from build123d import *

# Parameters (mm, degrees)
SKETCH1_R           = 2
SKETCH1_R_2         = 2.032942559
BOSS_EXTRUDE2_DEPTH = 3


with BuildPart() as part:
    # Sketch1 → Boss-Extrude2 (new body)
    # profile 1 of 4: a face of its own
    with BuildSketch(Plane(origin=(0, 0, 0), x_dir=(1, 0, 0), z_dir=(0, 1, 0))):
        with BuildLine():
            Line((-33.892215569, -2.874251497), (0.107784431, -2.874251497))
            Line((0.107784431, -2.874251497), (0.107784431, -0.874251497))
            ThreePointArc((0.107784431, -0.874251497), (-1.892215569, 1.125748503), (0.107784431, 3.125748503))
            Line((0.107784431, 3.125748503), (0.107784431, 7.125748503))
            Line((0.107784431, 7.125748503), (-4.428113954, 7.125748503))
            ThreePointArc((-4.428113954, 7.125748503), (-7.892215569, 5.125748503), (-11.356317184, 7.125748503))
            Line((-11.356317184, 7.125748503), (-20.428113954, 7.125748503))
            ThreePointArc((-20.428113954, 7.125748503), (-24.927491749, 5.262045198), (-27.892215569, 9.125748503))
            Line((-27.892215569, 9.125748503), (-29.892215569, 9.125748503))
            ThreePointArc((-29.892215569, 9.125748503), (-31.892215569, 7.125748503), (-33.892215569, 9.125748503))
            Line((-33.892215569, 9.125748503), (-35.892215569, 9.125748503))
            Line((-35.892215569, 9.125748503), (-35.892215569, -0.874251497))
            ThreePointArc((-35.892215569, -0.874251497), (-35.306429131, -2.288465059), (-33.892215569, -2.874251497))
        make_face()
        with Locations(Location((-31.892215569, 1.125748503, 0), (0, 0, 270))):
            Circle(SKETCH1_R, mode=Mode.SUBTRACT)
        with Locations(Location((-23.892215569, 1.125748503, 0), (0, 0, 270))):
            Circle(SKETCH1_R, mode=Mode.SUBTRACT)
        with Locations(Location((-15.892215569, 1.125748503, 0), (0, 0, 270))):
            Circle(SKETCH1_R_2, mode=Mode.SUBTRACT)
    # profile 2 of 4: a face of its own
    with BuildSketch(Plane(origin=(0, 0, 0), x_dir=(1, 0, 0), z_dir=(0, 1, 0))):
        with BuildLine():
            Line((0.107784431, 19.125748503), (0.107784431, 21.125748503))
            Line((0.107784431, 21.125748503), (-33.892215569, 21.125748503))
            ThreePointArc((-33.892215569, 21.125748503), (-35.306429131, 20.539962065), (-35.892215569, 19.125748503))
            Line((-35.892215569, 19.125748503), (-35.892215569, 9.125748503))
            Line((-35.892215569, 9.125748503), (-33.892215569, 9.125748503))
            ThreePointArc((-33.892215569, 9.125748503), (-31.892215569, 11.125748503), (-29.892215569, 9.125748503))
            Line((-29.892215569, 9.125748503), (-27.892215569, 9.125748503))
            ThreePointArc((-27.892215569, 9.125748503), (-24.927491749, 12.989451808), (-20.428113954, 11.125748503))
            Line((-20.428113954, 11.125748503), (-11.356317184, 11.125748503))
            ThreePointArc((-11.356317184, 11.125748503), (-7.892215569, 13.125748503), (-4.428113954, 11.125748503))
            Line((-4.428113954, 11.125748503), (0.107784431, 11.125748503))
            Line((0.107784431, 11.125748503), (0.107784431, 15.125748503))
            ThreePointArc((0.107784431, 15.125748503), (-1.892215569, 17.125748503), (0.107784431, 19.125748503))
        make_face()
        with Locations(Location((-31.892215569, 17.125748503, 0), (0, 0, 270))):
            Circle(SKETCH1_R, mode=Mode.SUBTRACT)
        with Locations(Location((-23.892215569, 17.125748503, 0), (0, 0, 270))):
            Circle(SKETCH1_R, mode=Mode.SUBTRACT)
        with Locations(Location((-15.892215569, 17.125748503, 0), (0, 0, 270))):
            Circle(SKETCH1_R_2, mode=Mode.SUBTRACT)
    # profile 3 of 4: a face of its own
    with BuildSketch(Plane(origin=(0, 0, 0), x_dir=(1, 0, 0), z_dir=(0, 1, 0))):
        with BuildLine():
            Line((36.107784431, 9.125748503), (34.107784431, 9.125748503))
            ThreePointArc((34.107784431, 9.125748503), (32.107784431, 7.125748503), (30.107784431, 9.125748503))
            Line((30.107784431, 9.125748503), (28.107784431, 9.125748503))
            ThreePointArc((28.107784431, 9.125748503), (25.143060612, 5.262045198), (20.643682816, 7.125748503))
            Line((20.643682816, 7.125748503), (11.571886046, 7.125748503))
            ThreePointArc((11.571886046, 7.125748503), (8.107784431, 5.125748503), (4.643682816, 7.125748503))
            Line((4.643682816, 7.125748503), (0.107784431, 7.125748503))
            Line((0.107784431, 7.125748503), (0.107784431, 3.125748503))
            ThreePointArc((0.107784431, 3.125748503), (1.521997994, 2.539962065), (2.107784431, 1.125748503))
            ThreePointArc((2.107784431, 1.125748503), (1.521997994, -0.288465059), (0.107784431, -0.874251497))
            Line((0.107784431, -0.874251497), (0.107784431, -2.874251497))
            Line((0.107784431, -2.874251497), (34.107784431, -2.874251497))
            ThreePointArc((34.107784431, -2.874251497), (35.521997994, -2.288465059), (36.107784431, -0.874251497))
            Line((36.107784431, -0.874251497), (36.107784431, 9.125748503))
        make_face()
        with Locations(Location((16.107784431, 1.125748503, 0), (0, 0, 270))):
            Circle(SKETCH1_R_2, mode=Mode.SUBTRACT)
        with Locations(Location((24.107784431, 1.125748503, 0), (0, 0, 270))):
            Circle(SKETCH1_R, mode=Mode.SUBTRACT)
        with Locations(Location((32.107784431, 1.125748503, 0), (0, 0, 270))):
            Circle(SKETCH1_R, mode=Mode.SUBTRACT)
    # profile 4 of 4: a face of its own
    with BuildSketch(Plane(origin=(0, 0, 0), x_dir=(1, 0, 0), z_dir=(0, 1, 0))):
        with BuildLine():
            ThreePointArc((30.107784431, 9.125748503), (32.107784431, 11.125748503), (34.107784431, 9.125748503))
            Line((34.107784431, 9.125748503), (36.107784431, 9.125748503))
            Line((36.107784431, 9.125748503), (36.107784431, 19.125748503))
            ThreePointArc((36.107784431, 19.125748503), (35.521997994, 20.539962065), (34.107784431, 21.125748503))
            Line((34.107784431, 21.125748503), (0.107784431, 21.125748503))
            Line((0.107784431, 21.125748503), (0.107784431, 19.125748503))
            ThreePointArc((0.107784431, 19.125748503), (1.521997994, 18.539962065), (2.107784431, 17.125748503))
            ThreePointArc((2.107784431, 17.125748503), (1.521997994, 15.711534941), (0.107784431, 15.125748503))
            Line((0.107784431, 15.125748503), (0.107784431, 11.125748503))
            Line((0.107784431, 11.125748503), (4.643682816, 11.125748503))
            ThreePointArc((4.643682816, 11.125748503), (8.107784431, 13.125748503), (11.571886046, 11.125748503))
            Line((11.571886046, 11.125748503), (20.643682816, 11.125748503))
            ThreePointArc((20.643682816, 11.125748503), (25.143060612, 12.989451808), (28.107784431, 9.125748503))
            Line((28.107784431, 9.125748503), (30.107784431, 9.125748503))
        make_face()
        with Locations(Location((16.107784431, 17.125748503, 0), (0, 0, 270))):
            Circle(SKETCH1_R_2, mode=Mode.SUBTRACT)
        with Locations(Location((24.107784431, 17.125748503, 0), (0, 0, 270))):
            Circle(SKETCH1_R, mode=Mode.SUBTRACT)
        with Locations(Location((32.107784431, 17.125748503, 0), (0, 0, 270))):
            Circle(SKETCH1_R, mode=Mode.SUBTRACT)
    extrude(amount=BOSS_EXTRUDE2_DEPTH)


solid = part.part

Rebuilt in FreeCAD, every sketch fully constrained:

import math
import FreeCAD as App
import Part
import Sketcher

V = App.Vector
Q = App.Units.Quantity

doc = App.newDocument("Part")
body = doc.addObject("PartDesign::Body", "Body")

# Sketch on XZ plane
sketch1 = body.newObject("Sketcher::SketchObject", "Sketch")
sketch1.AttachmentSupport = (doc.getObject("XZ_Plane"), [""])
sketch1.MapMode = "FlatFace"
sketch1.addGeometry([
    Part.LineSegment(V(-33.9, 2.9, 0), V(34.1, 2.9, 0)),  # 0
    Part.ArcOfCircle(Part.Circle(V(34.1, 0.9, 0), V(0, 0, 1), 2), math.radians(0), math.radians(90)),  # 1
    Part.LineSegment(V(36.1, 0.9, 0), V(36.1, -19.1, 0)),  # 2
    Part.ArcOfCircle(Part.Circle(V(34.1, -19.1, 0), V(0, 0, 1), 2), math.radians(-90), math.radians(0)),  # 3
    Part.LineSegment(V(34.1, -21.1, 0), V(-33.9, -21.1, 0)),  # 4
    Part.ArcOfCircle(Part.Circle(V(-33.9, -19.1, 0), V(0, 0, 1), 2), math.radians(-180), math.radians(-90)),  # 5
    Part.LineSegment(V(-35.9, -19.1, 0), V(-35.9, 0.9, 0)),  # 6
    Part.ArcOfCircle(Part.Circle(V(-33.9, 0.9, 0), V(0, 0, 1), 2), math.radians(90), math.radians(180)),  # 7
    Part.ArcOfCircle(Part.Circle(V(0.1, -1.1, 0), V(0, 0, 1), 2), math.radians(90), math.radians(270)),  # 8
    Part.ArcOfCircle(Part.Circle(V(0.1, -1.1, 0), V(0, 0, 1), 2), math.radians(-90), math.radians(0)),  # 9
    Part.ArcOfCircle(Part.Circle(V(0.1, -1.1, 0), V(0, 0, 1), 2), math.radians(0), math.radians(90)),  # 10
    Part.Circle(V(-31.9, -9.1, 0), V(0, 0, 1), 2),  # 11
    Part.ArcOfCircle(Part.Circle(V(-7.9, -9.1, 0), V(0, 0, 1), 4), math.radians(30), math.radians(150)),  # 12
    Part.LineSegment(V(-11.4, -7.1, 0), V(-20.4, -7.1, 0)),  # 13
    Part.ArcOfCircle(Part.Circle(V(-23.9, -9.1, 0), V(0, 0, 1), 4), math.radians(30), math.radians(180)),  # 14
    Part.ArcOfCircle(Part.Circle(V(-23.9, -9.1, 0), V(0, 0, 1), 4), math.radians(180), math.radians(330)),  # 15
    Part.LineSegment(V(-20.4, -11.1, 0), V(-11.4, -11.1, 0)),  # 16
    Part.ArcOfCircle(Part.Circle(V(-7.9, -9.1, 0), V(0, 0, 1), 4), math.radians(-150), math.radians(-30)),  # 17
    Part.LineSegment(V(-4.4, -11.1, 0), V(4.6, -11.1, 0)),  # 18
    Part.ArcOfCircle(Part.Circle(V(8.1, -9.1, 0), V(0, 0, 1), 4), math.radians(-150), math.radians(-30)),  # 19
    Part.LineSegment(V(11.6, -11.1, 0), V(20.6, -11.1, 0)),  # 20
    Part.ArcOfCircle(Part.Circle(V(24.1, -9.1, 0), V(0, 0, 1), 4), math.radians(-150), math.radians(0)),  # 21
    Part.ArcOfCircle(Part.Circle(V(24.1, -9.1, 0), V(0, 0, 1), 4), math.radians(0), math.radians(150)),  # 22
    Part.LineSegment(V(20.6, -7.1, 0), V(11.6, -7.1, 0)),  # 23
    Part.ArcOfCircle(Part.Circle(V(8.1, -9.1, 0), V(0, 0, 1), 4), math.radians(30), math.radians(150)),  # 24
    Part.LineSegment(V(4.6, -7.1, 0), V(-4.4, -7.1, 0)),  # 25
    Part.Circle(V(-31.9, -1.1, 0), V(0, 0, 1), 2),  # 26
    Part.Circle(V(-23.9, -1.1, 0), V(0, 0, 1), 2),  # 27
    Part.Circle(V(-15.9, -1.1, 0), V(0, 0, 1), 2),  # 28
    Part.Circle(V(32.1, -9.1, 0), V(0, 0, 1), 2),  # 29
    Part.Circle(V(32.1, -1.1, 0), V(0, 0, 1), 2),  # 30
    Part.Circle(V(24.1, -1.1, 0), V(0, 0, 1), 2),  # 31
    Part.Circle(V(16.1, -1.1, 0), V(0, 0, 1), 2),  # 32
    Part.ArcOfCircle(Part.Circle(V(0.1, -17.1, 0), V(0, 0, 1), 2), math.radians(90), math.radians(270)),  # 33
    Part.ArcOfCircle(Part.Circle(V(0.1, -17.1, 0), V(0, 0, 1), 2), math.radians(-90), math.radians(0)),  # 34
    Part.ArcOfCircle(Part.Circle(V(0.1, -17.1, 0), V(0, 0, 1), 2), math.radians(0), math.radians(90)),  # 35
    Part.Circle(V(-15.9, -17.1, 0), V(0, 0, 1), 2),  # 36
    Part.Circle(V(-23.9, -17.1, 0), V(0, 0, 1), 2),  # 37
    Part.Circle(V(-31.9, -17.1, 0), V(0, 0, 1), 2),  # 38
    Part.Circle(V(24.1, -17.1, 0), V(0, 0, 1), 2),  # 39
    Part.Circle(V(32.1, -17.1, 0), V(0, 0, 1), 2),  # 40
    Part.Circle(V(16.1, -17.1, 0), V(0, 0, 1), 2),  # 41
], False)
sketch1.addConstraint([
    Sketcher.Constraint("Tangent", 0, 2, 1, 2),
    Sketcher.Constraint("Tangent", 1, 1, 2, 1),
    Sketcher.Constraint("Tangent", 2, 2, 3, 2),
    Sketcher.Constraint("Tangent", 3, 1, 4, 1),
    Sketcher.Constraint("Tangent", 4, 2, 5, 2),
    Sketcher.Constraint("Tangent", 5, 1, 6, 1),
    Sketcher.Constraint("Tangent", 6, 2, 7, 2),
    Sketcher.Constraint("Tangent", 7, 1, 0, 1),
    Sketcher.Constraint("Tangent", 8, 2, 9, 1),
    Sketcher.Constraint("Tangent", 9, 2, 10, 1),
    Sketcher.Constraint("Tangent", 10, 2, 8, 1),
    Sketcher.Constraint("Coincident", 12, 2, 13, 1),
    Sketcher.Constraint("Coincident", 13, 2, 14, 1),
    Sketcher.Constraint("Tangent", 14, 2, 15, 1),
    Sketcher.Constraint("Coincident", 15, 2, 16, 1),
    Sketcher.Constraint("Coincident", 16, 2, 17, 1),
    Sketcher.Constraint("Coincident", 17, 2, 18, 1),
    Sketcher.Constraint("Coincident", 18, 2, 19, 1),
    Sketcher.Constraint("Coincident", 19, 2, 20, 1),
    Sketcher.Constraint("Coincident", 20, 2, 21, 1),
    Sketcher.Constraint("Tangent", 21, 2, 22, 1),
    Sketcher.Constraint("Coincident", 22, 2, 23, 1),
    Sketcher.Constraint("Coincident", 23, 2, 24, 1),
    Sketcher.Constraint("Coincident", 24, 2, 25, 1),
    Sketcher.Constraint("Coincident", 25, 2, 12, 1),
    Sketcher.Constraint("Tangent", 33, 2, 34, 1),
    Sketcher.Constraint("Tangent", 34, 2, 35, 1),
    Sketcher.Constraint("Tangent", 35, 2, 33, 1),
    Sketcher.Constraint("Horizontal", 0),
    Sketcher.Constraint("Vertical", 2),
    Sketcher.Constraint("Horizontal", 4),
    Sketcher.Constraint("Vertical", 6),
    Sketcher.Constraint("Horizontal", 13),
    Sketcher.Constraint("Horizontal", 16),
    Sketcher.Constraint("Horizontal", 18),
    Sketcher.Constraint("Horizontal", 20),
    Sketcher.Constraint("Horizontal", 23),
    Sketcher.Constraint("Horizontal", 25),
    Sketcher.Constraint("Coincident", 17, 3, 12, 3),
    Sketcher.Constraint("Coincident", 24, 3, 19, 3),
    Sketcher.Constraint("Equal", 1, 3),
    Sketcher.Constraint("Equal", 3, 5),
    Sketcher.Constraint("Equal", 5, 7),
    Sketcher.Constraint("Equal", 7, 8),
    Sketcher.Constraint("Equal", 10, 11),
    Sketcher.Constraint("Equal", 12, 14),
    Sketcher.Constraint("Equal", 14, 15),
    Sketcher.Constraint("Equal", 15, 17),
    Sketcher.Constraint("Equal", 17, 19),
    Sketcher.Constraint("Equal", 19, 21),
    Sketcher.Constraint("Equal", 21, 22),
    Sketcher.Constraint("Equal", 22, 24),
    Sketcher.Constraint("Equal", 11, 26),
    Sketcher.Constraint("Equal", 26, 27),
    Sketcher.Constraint("Equal", 27, 29),
    Sketcher.Constraint("Equal", 29, 30),
    Sketcher.Constraint("Equal", 30, 31),
    Sketcher.Constraint("Equal", 28, 32),
    Sketcher.Constraint("Equal", 31, 33),
    Sketcher.Constraint("Equal", 32, 36),
    Sketcher.Constraint("Equal", 35, 37),
    Sketcher.Constraint("Equal", 37, 38),
    Sketcher.Constraint("Equal", 38, 39),
    Sketcher.Constraint("Equal", 39, 40),
    Sketcher.Constraint("Equal", 36, 41),
    Sketcher.Constraint("Horizontal", 11, 3, 12, 3),
    Sketcher.Constraint("Horizontal", 12, 3, 14, 3),
    Sketcher.Constraint("Horizontal", 17, 3, 19, 3),
    Sketcher.Constraint("Horizontal", 19, 3, 21, 3),
    Sketcher.Constraint("Horizontal", 10, 3, 26, 3),
    Sketcher.Constraint("Horizontal", 26, 3, 27, 3),
    Sketcher.Constraint("Horizontal", 27, 3, 28, 3),
    Sketcher.Constraint("Horizontal", 24, 3, 29, 3),
    Sketcher.Constraint("Horizontal", 28, 3, 30, 3),
    Sketcher.Constraint("Horizontal", 30, 3, 31, 3),
    Sketcher.Constraint("Horizontal", 31, 3, 32, 3),
    Sketcher.Constraint("Horizontal", 35, 3, 36, 3),
    Sketcher.Constraint("Horizontal", 36, 3, 37, 3),
    Sketcher.Constraint("Horizontal", 37, 3, 38, 3),
    Sketcher.Constraint("Horizontal", 38, 3, 39, 3),
    Sketcher.Constraint("Horizontal", 39, 3, 40, 3),
    Sketcher.Constraint("Horizontal", 40, 3, 41, 3),
    Sketcher.Constraint("Horizontal", 32, 3, 9, 2),
    Sketcher.Constraint("Horizontal", 6, 2, 10, 2),
    Sketcher.Constraint("Horizontal", 29, 3, 14, 2),
    Sketcher.Constraint("Horizontal", 16, 2, 17, 2),
    Sketcher.Constraint("Horizontal", 18, 2, 19, 2),
    Sketcher.Constraint("Horizontal", 14, 2, 21, 2),
    Sketcher.Constraint("Horizontal", 13, 2, 22, 2),
    Sketcher.Constraint("Horizontal", 23, 2, 24, 2),
    Sketcher.Constraint("Horizontal", 5, 1, 33, 2),
    Sketcher.Constraint("Horizontal", 41, 3, 34, 2),
    Sketcher.Constraint("Vertical", 11, 3, 26, 3),
    Sketcher.Constraint("Vertical", 15, 3, 27, 3),
    Sketcher.Constraint("Vertical", 29, 3, 30, 3),
    Sketcher.Constraint("Vertical", 22, 3, 31, 3),
    Sketcher.Constraint("Vertical", 10, 3, 33, 3),
    Sketcher.Constraint("Vertical", 28, 3, 36, 3),
    Sketcher.Constraint("Vertical", 27, 3, 37, 3),
    Sketcher.Constraint("Vertical", 26, 3, 38, 3),
    Sketcher.Constraint("Vertical", 31, 3, 39, 3),
    Sketcher.Constraint("Vertical", 30, 3, 40, 3),
    Sketcher.Constraint("Vertical", 32, 3, 41, 3),
    Sketcher.Constraint("Vertical", 35, 3, 8, 2),
    Sketcher.Constraint("Vertical", 8, 2, 10, 2),
    Sketcher.Constraint("Vertical", 13, 2, 15, 2),
    Sketcher.Constraint("Vertical", 10, 2, 33, 2),
    Sketcher.Constraint("Vertical", 33, 2, 35, 2),
    Sketcher.Constraint("Equal", 16, 18),
    Sketcher.Constraint("Equal", 18, 20),
    Sketcher.Constraint("Diameter", 11, Q("4 mm")),
    Sketcher.Constraint("Radius", 12, Q("4 mm")),
    Sketcher.Constraint("DistanceX", 0, 1, 0, 2, Q("68 mm")),
    Sketcher.Constraint("DistanceY", 2, 2, 2, 1, Q("20 mm")),
    Sketcher.Constraint("DistanceX", 7, 3, 8, 3, Q("34 mm")),
    Sketcher.Constraint("DistanceX", 5, 3, 11, 3, Q("2 mm")),
    Sketcher.Constraint("DistanceY", 5, 3, 11, 3, Q("10 mm")),
    Sketcher.Constraint("DistanceX", 12, 3, 8, 3, Q("8 mm")),
    Sketcher.Constraint("DistanceX", 11, 3, 14, 3, Q("8 mm")),
    Sketcher.Constraint("DistanceX", 27, 3, 28, 3, Q("8 mm")),
    Sketcher.Constraint("DistanceX", 21, 3, 29, 3, Q("8 mm")),
    Sketcher.Constraint("DistanceX", 32, 3, 31, 3, Q("8 mm")),
    Sketcher.Constraint("DistanceY", 12, 3, 12, 2, Q("2 mm")),
    Sketcher.Constraint("Diameter", 28, Q("4.065885 mm")),
    Sketcher.Constraint("DistanceY", -1, 1, 1, 3, Q("0.874251 mm")),
    Sketcher.Constraint("DistanceX", -1, 1, 1, 3, Q("34.107784 mm")),
])
pad1 = body.newObject("PartDesign::Pad", "Pad")
pad1.Profile = sketch1
pad1.Length = 3
pad1.Reversed = True

doc.recompute()
